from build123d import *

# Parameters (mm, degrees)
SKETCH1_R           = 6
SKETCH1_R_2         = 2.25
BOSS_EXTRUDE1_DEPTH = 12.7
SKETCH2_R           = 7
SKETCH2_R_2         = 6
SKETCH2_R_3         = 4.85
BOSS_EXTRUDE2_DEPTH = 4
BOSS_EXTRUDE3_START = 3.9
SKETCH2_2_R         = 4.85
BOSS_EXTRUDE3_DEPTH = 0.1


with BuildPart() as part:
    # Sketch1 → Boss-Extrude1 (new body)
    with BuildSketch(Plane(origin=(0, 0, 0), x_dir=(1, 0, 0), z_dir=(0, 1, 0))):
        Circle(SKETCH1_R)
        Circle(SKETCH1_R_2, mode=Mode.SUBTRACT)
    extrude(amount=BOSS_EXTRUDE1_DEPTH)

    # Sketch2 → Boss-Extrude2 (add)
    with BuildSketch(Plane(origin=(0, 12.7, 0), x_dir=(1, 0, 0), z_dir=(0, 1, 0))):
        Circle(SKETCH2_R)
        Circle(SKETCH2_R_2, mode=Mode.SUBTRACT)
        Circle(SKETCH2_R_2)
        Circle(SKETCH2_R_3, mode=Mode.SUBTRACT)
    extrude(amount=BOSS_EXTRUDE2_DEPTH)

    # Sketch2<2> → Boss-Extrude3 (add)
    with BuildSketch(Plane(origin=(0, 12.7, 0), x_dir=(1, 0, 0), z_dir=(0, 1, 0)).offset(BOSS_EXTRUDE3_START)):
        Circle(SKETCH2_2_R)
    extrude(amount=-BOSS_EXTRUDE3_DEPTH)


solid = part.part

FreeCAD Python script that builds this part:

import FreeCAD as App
import Part
import Sketcher

doc = App.newDocument("Part")
body = doc.addObject("PartDesign::Body", "Body")

# Sketch on XZ plane
sketch1 = doc.addObject("Sketcher::SketchObject", "Sketch")
body.addObject(sketch1)
sketch1.AttachmentSupport = (doc.XZ_Plane, [""])
sketch1.MapMode = "FlatFace"
sketch1.addGeometry([
    Part.Circle(App.Vector(0, 0, 0), App.Vector(0, 0, 1), 6),
    Part.Circle(App.Vector(0, 0, 0), App.Vector(0, 0, 1), 2.2),
], False)
sketch1.addConstraint([
    Sketcher.Constraint("Coincident", 0, 3, -1, 1),
    Sketcher.Constraint("Coincident", 1, 3, -1, 1),
    Sketcher.Constraint("Diameter", 0, 12.0),
    Sketcher.Constraint("Diameter", 1, 4.5),
])
pad1 = doc.addObject("PartDesign::Pad", "Pad")
body.addObject(pad1)
pad1.Profile = sketch1
pad1.Length = 12.7
pad1.Reversed = True

# Sketch on XZ plane
sketch2 = doc.addObject("Sketcher::SketchObject", "Sketch001")
body.addObject(sketch2)
sketch2.AttachmentSupport = (doc.XZ_Plane, [""])
sketch2.MapMode = "FlatFace"
sketch2.AttachmentOffset = App.Placement(App.Vector(0, 0, -12.7), App.Rotation())
sketch2.addGeometry([
    Part.Circle(App.Vector(0, 0, 0), App.Vector(0, 0, 1), 7),
    Part.Circle(App.Vector(0, 0, 0), App.Vector(0, 0, 1), 4.8),
], False)
sketch2.addConstraint([
    Sketcher.Constraint("Coincident", 0, 3, -1, 1),
    Sketcher.Constraint("Coincident", 1, 3, -1, 1),
    Sketcher.Constraint("Diameter", 0, 14.0),
    Sketcher.Constraint("Diameter", 1, 9.7),
])
pad2 = doc.addObject("PartDesign::Pad", "Pad001")
body.addObject(pad2)
pad2.Profile = sketch2
pad2.Length = 4
pad2.Reversed = True

# Sketch on XZ plane
sketch3 = doc.addObject("Sketcher::SketchObject", "Sketch002")
body.addObject(sketch3)
sketch3.AttachmentSupport = (doc.XZ_Plane, [""])
sketch3.MapMode = "FlatFace"
sketch3.AttachmentOffset = App.Placement(App.Vector(0, 0, -16.6), App.Rotation())
sketch3.addGeometry(Part.Circle(App.Vector(0, 0, 0), App.Vector(0, 0, 1), 4.8), False)
sketch3.addConstraint([
    Sketcher.Constraint("Coincident", 0, 3, -1, 1),
    Sketcher.Constraint("Diameter", 0, 9.7),
])
pad3 = doc.addObject("PartDesign::Pad", "Pad002")
body.addObject(pad3)
pad3.Profile = sketch3
pad3.Length = 0.1

doc.recompute()
